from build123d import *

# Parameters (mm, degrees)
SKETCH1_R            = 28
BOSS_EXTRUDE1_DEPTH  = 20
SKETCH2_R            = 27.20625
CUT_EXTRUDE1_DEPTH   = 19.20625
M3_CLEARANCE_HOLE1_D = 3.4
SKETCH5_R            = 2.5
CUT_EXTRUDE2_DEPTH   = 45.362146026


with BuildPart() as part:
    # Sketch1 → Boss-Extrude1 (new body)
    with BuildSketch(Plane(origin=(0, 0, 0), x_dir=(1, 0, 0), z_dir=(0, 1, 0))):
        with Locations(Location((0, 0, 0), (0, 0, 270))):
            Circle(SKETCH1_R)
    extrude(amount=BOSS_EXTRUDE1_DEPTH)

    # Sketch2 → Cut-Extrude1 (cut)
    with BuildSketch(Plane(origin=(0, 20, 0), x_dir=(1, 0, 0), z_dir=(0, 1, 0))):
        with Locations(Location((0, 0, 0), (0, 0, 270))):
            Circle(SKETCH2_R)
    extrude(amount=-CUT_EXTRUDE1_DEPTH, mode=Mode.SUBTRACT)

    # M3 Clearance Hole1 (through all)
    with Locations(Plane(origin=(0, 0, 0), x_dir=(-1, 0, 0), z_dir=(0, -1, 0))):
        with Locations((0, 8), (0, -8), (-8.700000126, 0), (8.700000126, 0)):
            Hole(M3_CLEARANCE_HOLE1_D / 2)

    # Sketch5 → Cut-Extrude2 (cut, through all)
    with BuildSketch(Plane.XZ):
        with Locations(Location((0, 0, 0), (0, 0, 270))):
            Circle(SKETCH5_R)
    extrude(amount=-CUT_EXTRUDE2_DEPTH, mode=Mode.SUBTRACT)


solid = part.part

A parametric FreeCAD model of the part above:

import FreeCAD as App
import Part
import Sketcher

doc = App.newDocument("Part")
body = doc.addObject("PartDesign::Body", "Body")

sketch1 = doc.addObject("Sketcher::SketchObject", "Sketch")
body.addObject(sketch1)
sketch1.AttachmentSupport = (doc.XZ_Plane, [""])
sketch1.MapMode = "FlatFace"
sketch1.addGeometry(Part.Circle(App.Vector(0, 0, 0), App.Vector(0, 0, 1), 28), False)
sketch1.addConstraint([
    Sketcher.Constraint("Coincident", 0, 3, -1, 1),
    Sketcher.Constraint("Diameter", 0, 56.0),
])
pad1 = doc.addObject("PartDesign::Pad", "Pad")
body.addObject(pad1)
pad1.Profile = sketch1
pad1.Length = 20
pad1.Reversed = True

sketch2 = doc.addObject("Sketcher::SketchObject", "Sketch001")
body.addObject(sketch2)
sketch2.AttachmentSupport = (doc.XZ_Plane, [""])
sketch2.MapMode = "FlatFace"
sketch2.AttachmentOffset = App.Placement(App.Vector(0, 0, -20), App.Rotation())
sketch2.addGeometry(Part.Circle(App.Vector(0, 0, 0), App.Vector(0, 0, 1), 27.20625), False)
sketch2.addConstraint([
    Sketcher.Constraint("Coincident", 0, 3, -1, 1),
    Sketcher.Constraint("Diameter", 0, 54.4125),
])
pocket1 = doc.addObject("PartDesign::Pocket", "Pocket")
body.addObject(pocket1)
pocket1.Profile = sketch2
pocket1.Length = 19.20625
pocket1.Reversed = True

sketch3 = doc.addObject("Sketcher::SketchObject", "Sketch002")
body.addObject(sketch3)
sketch3.AttachmentSupport = (doc.XZ_Plane, [""])
sketch3.MapMode = "FlatFace"
sketch3.addGeometry([
    Part.Circle(App.Vector(0, -8, 0), App.Vector(0, 0, 1), 1.7),
    Part.Circle(App.Vector(0, 8, 0), App.Vector(0, 0, 1), 1.7),
    Part.Circle(App.Vector(8.7, 0, 0), App.Vector(0, 0, 1), 1.7),
    Part.Circle(App.Vector(-8.7, 0, 0), App.Vector(0, 0, 1), 1.7),
], False)
sketch3.addConstraint([
    Sketcher.Constraint("Equal", 0, 1),
    Sketcher.Constraint("Equal", 1, 2),
    Sketcher.Constraint("Equal", 2, 3),
    Sketcher.Constraint("Symmetric", 0, 3, 1, 3, -1, 1),
    Sketcher.Constraint("Symmetric", 2, 3, 3, 3, -1, 1),
    Sketcher.Constraint("PointOnObject", 0, 3, -2),
    Sketcher.Constraint("PointOnObject", 2, 3, -1),
    Sketcher.Constraint("Diameter", 0, 3.4),
    Sketcher.Constraint("DistanceY", 0, 3, -1, 1, 8.0),
    Sketcher.Constraint("DistanceX", -1, 1, 2, 3, 8.7),
])
doc.recompute()
hole = doc.addObject("PartDesign::Hole", "Hole")
body.addObject(hole)
hole.Profile = sketch3
hole.ThreadType = "None"
hole.Diameter = 3.4
hole.DepthType = "ThroughAll"

sketch4 = doc.addObject("Sketcher::SketchObject", "Sketch003")
body.addObject(sketch4)
sketch4.AttachmentSupport = (doc.XZ_Plane, [""])
sketch4.MapMode = "FlatFace"
sketch4.addGeometry(Part.Circle(App.Vector(0, 0, 0), App.Vector(0, 0, 1), 2.5), False)
sketch4.addConstraint([
    Sketcher.Constraint("Coincident", 0, 3, -1, 1),
    Sketcher.Constraint("Diameter", 0, 5.0),
])
pocket2 = doc.addObject("PartDesign::Pocket", "Pocket001")
body.addObject(pocket2)
pocket2.Profile = sketch4
pocket2.Type = "ThroughAll"

doc.recompute()
